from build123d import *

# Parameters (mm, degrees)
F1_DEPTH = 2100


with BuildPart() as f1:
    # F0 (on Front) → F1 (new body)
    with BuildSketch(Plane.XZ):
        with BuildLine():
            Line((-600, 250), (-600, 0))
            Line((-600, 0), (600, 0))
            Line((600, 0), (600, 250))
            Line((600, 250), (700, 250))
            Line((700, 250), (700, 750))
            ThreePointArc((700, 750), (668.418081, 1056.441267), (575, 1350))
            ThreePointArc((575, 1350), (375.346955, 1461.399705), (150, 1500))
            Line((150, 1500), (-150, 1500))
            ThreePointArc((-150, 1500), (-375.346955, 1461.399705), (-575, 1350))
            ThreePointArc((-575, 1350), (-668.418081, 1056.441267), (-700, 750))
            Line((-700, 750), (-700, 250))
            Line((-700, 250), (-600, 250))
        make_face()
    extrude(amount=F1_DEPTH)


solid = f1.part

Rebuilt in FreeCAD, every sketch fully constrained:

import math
import FreeCAD as App
import Part
import Sketcher

V = App.Vector
Q = App.Units.Quantity

doc = App.newDocument("Part")
params = doc.addObject("Spreadsheet::Sheet", "Params")
for row, (alias, value) in enumerate([
    ("sketch1_width", "1200 mm"),
    ("sketch1_width2", "100 mm"),
    ("sketch1_width3", "300 mm"),
    ("sketch1_height", "250 mm"),
    ("sketch1_height2", "500 mm"),
    ("pad1_length", "2100 mm"),
], start=1):
    params.set(f"A{row}", alias)
    params.set(f"B{row}", "=" + value)
    params.setAlias(f"B{row}", alias)

body = doc.addObject("PartDesign::Body", "Body")

sketch1 = doc.addObject("Sketcher::SketchObject", "Sketch")
body.addObject(sketch1)
sketch1.AttachmentSupport = (doc.XZ_Plane, [""])
sketch1.MapMode = "FlatFace"
sketch1.addGeometry([
    Part.LineSegment(V(-600, 250, 0), V(-600, 0, 0)),
    Part.LineSegment(V(-600, 0, 0), V(600, 0, 0)),
    Part.LineSegment(V(600, 0, 0), V(600, 250, 0)),
    Part.LineSegment(V(600, 250, 0), V(700, 250, 0)),
    Part.LineSegment(V(700, 250, 0), V(700, 750, 0)),
    Part.ArcOfCircle(Part.Circle(V(-802, 750, 0), V(0, 0, 1), 1502), math.radians(0), math.radians(24)),
    Part.ArcOfCircle(Part.Circle(V(150, 823, 0), V(0, 0, 1), 677), math.radians(51), math.radians(90)),
    Part.LineSegment(V(150, 1500, 0), V(-150, 1500, 0)),
    Part.ArcOfCircle(Part.Circle(V(-150, 823, 0), V(0, 0, 1), 677), math.radians(90), math.radians(129)),
    Part.ArcOfCircle(Part.Circle(V(802, 750, 0), V(0, 0, 1), 1502), math.radians(156), math.radians(180)),
    Part.LineSegment(V(-700, 750, 0), V(-700, 250, 0)),
    Part.LineSegment(V(-700, 250, 0), V(-600, 250, 0)),
], False)
sketch1.addConstraint([
    Sketcher.Constraint("Coincident", 0, 2, 1, 1),
    Sketcher.Constraint("Coincident", 1, 2, 2, 1),
    Sketcher.Constraint("Coincident", 2, 2, 3, 1),
    Sketcher.Constraint("Coincident", 3, 2, 4, 1),
    Sketcher.Constraint("Tangent", 4, 2, 5, 1),
    Sketcher.Constraint("Coincident", 5, 2, 6, 1),
    Sketcher.Constraint("Tangent", 6, 2, 7, 1),
    Sketcher.Constraint("Tangent", 7, 2, 8, 1),
    Sketcher.Constraint("Coincident", 8, 2, 9, 1),
    Sketcher.Constraint("Tangent", 9, 2, 10, 1),
    Sketcher.Constraint("Coincident", 10, 2, 11, 1),
    Sketcher.Constraint("Coincident", 11, 2, 0, 1),
    Sketcher.Constraint("Vertical", 0),
    Sketcher.Constraint("Horizontal", 1),
    Sketcher.Constraint("Vertical", 2),
    Sketcher.Constraint("Horizontal", 3),
    Sketcher.Constraint("Vertical", 4),
    Sketcher.Constraint("Horizontal", 7),
    Sketcher.Constraint("Vertical", 10),
    Sketcher.Constraint("Horizontal", 11),
    Sketcher.Constraint("Equal", 6, 8),
    Sketcher.Constraint("Equal", 5, 9),
    Sketcher.Constraint("Symmetric", 0, 2, 1, 2, -1, 1),
    Sketcher.Constraint("Symmetric", 5, 3, 9, 3, -2),
    Sketcher.Constraint("Horizontal", 3, 2, 10, 2),
    Sketcher.Constraint("DistanceX", 1, 1, 1, 2, Q("1200 mm")),
    Sketcher.Constraint("DistanceX", 3, 1, 3, 2, Q("100 mm")),
    Sketcher.Constraint("DistanceX", 7, 2, 7, 1, Q("300 mm")),
    Sketcher.Constraint("DistanceY", 0, 2, 0, 1, Q("250 mm")),
    Sketcher.Constraint("DistanceY", 4, 1, 4, 2, Q("500 mm")),
    Sketcher.Constraint("DistanceX", -1, 1, 6, 3, Q("150 mm")),
    Sketcher.Constraint("DistanceY", -1, 1, 6, 2, Q("1500 mm")),
    Sketcher.Constraint("Radius", 5, Q("1502.499982 mm")),
    Sketcher.Constraint("Radius", 6, Q("677.083332 mm")),
])
sketch1.setExpression("Constraints[25]", "Params.sketch1_width")
sketch1.setExpression("Constraints[26]", "Params.sketch1_width2")
sketch1.setExpression("Constraints[27]", "Params.sketch1_width3")
sketch1.setExpression("Constraints[28]", "Params.sketch1_height")
sketch1.setExpression("Constraints[29]", "Params.sketch1_height2")
pad1 = doc.addObject("PartDesign::Pad", "Pad")
body.addObject(pad1)
pad1.Profile = sketch1
pad1.setExpression("Length", "Params.pad1_length")

doc.recompute()
